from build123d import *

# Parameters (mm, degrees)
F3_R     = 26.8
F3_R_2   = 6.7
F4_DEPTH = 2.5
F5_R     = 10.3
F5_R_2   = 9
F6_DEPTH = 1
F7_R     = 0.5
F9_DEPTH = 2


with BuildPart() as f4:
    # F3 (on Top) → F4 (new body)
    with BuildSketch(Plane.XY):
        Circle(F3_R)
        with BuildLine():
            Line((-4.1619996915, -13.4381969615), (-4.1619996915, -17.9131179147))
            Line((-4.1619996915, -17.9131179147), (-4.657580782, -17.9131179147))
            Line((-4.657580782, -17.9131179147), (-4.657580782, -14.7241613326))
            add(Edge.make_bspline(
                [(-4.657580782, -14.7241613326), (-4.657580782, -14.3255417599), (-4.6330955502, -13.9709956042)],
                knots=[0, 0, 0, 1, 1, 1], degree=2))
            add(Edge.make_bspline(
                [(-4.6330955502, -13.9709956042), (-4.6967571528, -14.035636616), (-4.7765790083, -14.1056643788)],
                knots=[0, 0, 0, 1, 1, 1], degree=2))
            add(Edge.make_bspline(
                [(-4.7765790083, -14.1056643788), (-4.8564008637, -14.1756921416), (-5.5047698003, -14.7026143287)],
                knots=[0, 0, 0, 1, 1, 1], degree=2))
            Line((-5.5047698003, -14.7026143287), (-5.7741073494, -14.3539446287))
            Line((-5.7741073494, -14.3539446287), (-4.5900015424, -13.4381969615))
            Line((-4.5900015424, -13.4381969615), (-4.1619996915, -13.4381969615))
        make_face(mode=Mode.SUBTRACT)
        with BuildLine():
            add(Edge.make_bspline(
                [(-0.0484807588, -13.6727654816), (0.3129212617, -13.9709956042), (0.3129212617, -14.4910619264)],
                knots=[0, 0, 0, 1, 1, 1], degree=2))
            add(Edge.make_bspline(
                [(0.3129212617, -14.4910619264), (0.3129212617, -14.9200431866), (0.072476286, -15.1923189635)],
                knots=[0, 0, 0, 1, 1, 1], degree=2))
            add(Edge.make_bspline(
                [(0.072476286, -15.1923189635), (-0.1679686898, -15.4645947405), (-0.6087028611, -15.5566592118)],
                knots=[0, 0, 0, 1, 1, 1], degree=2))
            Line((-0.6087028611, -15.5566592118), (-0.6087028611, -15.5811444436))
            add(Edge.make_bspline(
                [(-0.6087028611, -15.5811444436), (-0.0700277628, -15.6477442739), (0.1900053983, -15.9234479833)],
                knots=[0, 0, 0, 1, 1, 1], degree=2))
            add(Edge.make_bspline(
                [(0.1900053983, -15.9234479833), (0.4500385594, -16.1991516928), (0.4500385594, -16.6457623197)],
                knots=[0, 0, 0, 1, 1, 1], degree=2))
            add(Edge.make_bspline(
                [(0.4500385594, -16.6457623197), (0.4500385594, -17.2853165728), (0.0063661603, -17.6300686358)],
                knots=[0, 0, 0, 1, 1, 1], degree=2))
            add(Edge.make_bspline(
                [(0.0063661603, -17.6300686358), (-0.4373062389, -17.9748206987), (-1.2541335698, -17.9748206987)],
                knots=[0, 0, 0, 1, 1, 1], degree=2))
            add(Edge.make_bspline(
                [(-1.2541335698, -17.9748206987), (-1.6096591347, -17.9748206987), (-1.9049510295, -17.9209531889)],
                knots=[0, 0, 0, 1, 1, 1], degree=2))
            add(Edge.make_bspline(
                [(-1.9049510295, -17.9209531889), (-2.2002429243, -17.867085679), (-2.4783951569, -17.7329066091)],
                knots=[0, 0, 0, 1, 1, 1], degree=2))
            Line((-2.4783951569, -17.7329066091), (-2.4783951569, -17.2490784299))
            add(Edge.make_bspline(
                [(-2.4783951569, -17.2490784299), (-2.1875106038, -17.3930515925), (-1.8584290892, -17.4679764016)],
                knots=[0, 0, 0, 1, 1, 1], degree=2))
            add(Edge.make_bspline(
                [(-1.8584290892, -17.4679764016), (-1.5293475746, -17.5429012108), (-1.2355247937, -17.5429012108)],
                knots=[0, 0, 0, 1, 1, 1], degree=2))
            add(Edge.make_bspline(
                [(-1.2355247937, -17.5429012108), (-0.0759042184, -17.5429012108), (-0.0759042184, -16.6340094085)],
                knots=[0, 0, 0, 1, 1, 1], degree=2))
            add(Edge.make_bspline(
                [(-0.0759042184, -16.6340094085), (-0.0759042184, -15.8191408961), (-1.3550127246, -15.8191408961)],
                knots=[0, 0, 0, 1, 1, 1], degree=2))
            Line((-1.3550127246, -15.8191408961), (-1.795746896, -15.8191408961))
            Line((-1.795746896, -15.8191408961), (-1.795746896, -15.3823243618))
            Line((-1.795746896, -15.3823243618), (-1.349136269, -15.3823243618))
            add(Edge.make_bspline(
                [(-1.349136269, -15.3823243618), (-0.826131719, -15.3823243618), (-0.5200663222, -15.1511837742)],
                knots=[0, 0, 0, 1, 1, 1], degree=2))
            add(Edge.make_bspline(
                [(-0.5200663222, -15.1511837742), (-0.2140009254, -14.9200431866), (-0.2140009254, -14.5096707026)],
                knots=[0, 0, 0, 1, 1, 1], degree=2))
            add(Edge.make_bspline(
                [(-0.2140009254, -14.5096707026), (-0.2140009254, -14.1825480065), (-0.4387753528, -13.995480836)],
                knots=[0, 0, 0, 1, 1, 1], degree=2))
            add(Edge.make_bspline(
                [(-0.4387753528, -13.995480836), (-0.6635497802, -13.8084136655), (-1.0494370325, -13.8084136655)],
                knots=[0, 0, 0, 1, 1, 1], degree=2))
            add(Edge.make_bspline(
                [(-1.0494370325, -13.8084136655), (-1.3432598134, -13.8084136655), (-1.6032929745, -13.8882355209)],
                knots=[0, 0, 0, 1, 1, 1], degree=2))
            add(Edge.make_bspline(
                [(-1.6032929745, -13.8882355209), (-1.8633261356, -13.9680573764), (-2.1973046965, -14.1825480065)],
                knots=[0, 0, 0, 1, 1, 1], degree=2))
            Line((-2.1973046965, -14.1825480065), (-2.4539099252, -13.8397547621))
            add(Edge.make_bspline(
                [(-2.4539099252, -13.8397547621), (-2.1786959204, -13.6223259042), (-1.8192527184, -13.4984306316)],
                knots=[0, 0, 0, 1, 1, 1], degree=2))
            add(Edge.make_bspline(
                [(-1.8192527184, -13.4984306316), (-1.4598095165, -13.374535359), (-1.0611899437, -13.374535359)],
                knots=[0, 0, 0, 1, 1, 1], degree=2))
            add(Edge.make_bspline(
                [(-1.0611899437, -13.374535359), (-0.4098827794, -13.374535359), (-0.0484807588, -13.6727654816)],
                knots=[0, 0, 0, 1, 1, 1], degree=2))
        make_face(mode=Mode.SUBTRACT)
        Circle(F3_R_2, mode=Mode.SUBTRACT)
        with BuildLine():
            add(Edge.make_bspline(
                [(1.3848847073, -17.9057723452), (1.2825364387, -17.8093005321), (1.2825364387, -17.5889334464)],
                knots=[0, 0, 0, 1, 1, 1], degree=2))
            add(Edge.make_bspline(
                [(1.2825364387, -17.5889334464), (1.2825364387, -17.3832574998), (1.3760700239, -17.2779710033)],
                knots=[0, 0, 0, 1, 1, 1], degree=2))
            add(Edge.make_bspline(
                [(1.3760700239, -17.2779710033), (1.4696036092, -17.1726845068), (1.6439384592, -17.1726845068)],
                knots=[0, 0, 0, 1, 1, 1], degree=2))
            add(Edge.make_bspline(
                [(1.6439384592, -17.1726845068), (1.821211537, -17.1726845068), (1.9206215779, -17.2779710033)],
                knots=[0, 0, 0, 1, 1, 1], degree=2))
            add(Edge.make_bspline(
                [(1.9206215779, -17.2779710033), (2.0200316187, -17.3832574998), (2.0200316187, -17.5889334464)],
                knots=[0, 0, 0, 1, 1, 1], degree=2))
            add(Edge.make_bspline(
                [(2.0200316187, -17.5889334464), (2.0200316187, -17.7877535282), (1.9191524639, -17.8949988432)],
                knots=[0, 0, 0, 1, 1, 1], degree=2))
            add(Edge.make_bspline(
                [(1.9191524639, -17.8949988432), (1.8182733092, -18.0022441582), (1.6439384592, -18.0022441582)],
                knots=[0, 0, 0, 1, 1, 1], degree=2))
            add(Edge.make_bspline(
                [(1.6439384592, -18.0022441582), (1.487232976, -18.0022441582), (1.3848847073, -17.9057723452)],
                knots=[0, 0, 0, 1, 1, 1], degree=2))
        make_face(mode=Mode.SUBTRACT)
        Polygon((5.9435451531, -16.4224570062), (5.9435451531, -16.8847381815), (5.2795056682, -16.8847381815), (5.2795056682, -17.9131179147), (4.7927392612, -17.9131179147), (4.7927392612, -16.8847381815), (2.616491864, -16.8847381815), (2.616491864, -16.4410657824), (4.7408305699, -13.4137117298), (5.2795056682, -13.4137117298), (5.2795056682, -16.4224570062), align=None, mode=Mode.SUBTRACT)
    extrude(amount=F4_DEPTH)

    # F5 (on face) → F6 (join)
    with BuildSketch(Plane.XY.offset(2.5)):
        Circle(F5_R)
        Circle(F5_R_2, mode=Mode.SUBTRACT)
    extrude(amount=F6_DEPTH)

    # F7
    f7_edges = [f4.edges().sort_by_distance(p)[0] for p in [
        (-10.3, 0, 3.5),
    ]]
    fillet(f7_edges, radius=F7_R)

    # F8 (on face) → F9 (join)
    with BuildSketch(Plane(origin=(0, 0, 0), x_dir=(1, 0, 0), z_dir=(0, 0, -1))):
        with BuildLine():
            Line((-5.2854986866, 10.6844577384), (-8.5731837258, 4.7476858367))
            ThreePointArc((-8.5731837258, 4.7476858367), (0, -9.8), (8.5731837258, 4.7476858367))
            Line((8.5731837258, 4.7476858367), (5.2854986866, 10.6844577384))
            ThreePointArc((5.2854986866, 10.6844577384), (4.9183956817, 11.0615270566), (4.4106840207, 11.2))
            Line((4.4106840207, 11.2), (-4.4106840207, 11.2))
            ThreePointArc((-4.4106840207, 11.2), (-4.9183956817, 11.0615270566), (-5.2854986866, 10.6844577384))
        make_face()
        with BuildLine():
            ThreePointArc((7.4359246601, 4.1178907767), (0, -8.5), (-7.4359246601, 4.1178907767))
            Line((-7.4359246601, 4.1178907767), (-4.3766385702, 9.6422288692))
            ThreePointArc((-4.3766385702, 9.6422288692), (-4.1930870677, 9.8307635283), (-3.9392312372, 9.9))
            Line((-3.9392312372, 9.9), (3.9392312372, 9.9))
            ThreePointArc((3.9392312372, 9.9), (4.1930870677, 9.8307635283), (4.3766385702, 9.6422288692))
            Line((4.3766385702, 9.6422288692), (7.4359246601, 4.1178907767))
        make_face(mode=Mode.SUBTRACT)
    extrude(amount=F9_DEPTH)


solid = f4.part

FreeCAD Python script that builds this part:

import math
import FreeCAD as App
import Part
import Sketcher

V = App.Vector


def edges_at(feature, points):
    """Names of the edges that pass closest to the given points."""
    edges = feature.Shape.Edges
    near = lambda p: min(range(len(edges)), key=lambda i: edges[i].distToShape(Part.Vertex(*p))[0])
    return sorted({f"Edge{near(p) + 1}" for p in points})


def add_polygon(sketch, points):
    """Adds a closed chain of lines whose ends are joined by coincident constraints."""
    first, n = sketch.GeometryCount, len(points)
    for a, b in zip(points, points[1:] + points[:1]):
        sketch.addGeometry(Part.LineSegment(App.Vector(*a, 0), App.Vector(*b, 0)), False)
    for i in range(n):
        sketch.addConstraint(Sketcher.Constraint("Coincident", first + i, 2, first + (i + 1) % n, 1))

doc = App.newDocument("Part")
params = doc.addObject("Spreadsheet::Sheet", "Params")
for row, (alias, value) in enumerate([
    ("sketch1_diameter", "53.6 mm"),
    ("sketch1_diameter2", "13.4 mm"),
    ("pad1_length", "2.5 mm"),
    ("sketch2_diameter", "18 mm"),
    ("sketch2_diameter2", "20.6 mm"),
    ("pad2_length", "1 mm"),
    ("fillet_radius", "0.5 mm"),
    ("sketch3_radius", "1 mm"),
    ("sketch3_radius2", "9.8 mm"),
    ("sketch3_radius3", "8.5 mm"),
    ("sketch3_radius4", "0.5 mm"),
    ("pad3_length", "2 mm"),
], start=1):
    params.set(f"A{row}", alias)
    params.set(f"B{row}", "=" + value)
    params.setAlias(f"B{row}", alias)

body = doc.addObject("PartDesign::Body", "Body")

# Sketch on XY plane
sketch1 = body.newObject("Sketcher::SketchObject", "Sketch")
sketch1.AttachmentSupport = (doc.getObject("XY_Plane"), [""])
sketch1.MapMode = "FlatFace"
sketch1.addGeometry(Part.Circle(V(0, 0, 0), V(0, 0, 1), 26.8), False)  # 0
sketch1.addGeometry(Part.LineSegment(V(-4.590002, -13.438197, 0), V(-4.162, -13.438197, 0)), False)  # 1
sketch1.addGeometry(Part.LineSegment(V(-4.162, -13.438197, 0), V(-4.162, -17.913118, 0)), False)  # 2
sketch1.addGeometry(Part.LineSegment(V(-4.162, -17.913118, 0), V(-4.657581, -17.913118, 0)), False)  # 3
sketch1.addGeometry(Part.LineSegment(V(-4.657581, -17.913118, 0), V(-4.657581, -14.724161, 0)), False)  # 4
sketch1.addGeometry(Part.BSplineCurve([V(-4.657581, -14.724161, 0), V(-4.657581, -14.325542, 0), V(-4.633096, -13.970996, 0)], [3, 3], [0, 1], False, 2, [1, 1, 1], False), False)  # 5
sketch1.addGeometry(Part.BSplineCurve([V(-4.633096, -13.970996, 0), V(-4.696757, -14.035637, 0), V(-4.776579, -14.105664, 0)], [3, 3], [0, 1], False, 2, [1, 1, 1], False), False)  # 6
sketch1.addGeometry(Part.BSplineCurve([V(-4.776579, -14.105664, 0), V(-4.856401, -14.175692, 0), V(-5.50477, -14.702614, 0)], [3, 3], [0, 1], False, 2, [1, 1, 1], False), False)  # 7
sketch1.addGeometry(Part.LineSegment(V(-5.50477, -14.702614, 0), V(-5.774107, -14.353945, 0)), False)  # 8
sketch1.addGeometry(Part.LineSegment(V(-5.774107, -14.353945, 0), V(-4.590002, -13.438197, 0)), False)  # 9
sketch1.addGeometry(Part.BSplineCurve([V(-1.819253, -13.498431, 0), V(-1.45981, -13.374535, 0), V(-0.409883, -13.374535, 0), V(-0.048481, -13.672765, 0)], [3, 1, 3], [0, 1, 2.633906634], False, 2, [1, 1, 1, 1], False), False)  # 10
sketch1.addGeometry(Part.BSplineCurve([V(-0.048481, -13.672765, 0), V(0.312921, -13.970996, 0), V(0.312921, -14.920043, 0), V(0.072476, -15.192319, 0)], [3, 1, 3], [0, 1, 1.824858757], False, 2, [1, 1, 1, 1], False), False)  # 11
sketch1.addGeometry(Part.BSplineCurve([V(0.072476, -15.192319, 0), V(-0.167969, -15.464595, 0), V(-0.608703, -15.556659, 0)], [3, 3], [0, 1], False, 2, [1, 1, 1], False), False)  # 12
sketch1.addGeometry(Part.LineSegment(V(-0.608703, -15.556659, 0), V(-0.608703, -15.581144, 0)), False)  # 13
sketch1.addGeometry(Part.BSplineCurve([V(-0.608703, -15.581144, 0), V(-0.070028, -15.647744, 0), V(0.190005, -15.923448, 0)], [3, 3], [0, 1], False, 2, [1, 1, 1], False), False)  # 14
sketch1.addGeometry(Part.BSplineCurve([V(0.190005, -15.923448, 0), V(0.450039, -16.199152, 0), V(0.450039, -17.285317, 0), V(0.006366, -17.630069, 0)], [3, 1, 3], [0, 1, 2.432017544], False, 2, [1, 1, 1, 1], False), False)  # 15
sketch1.addGeometry(Part.BSplineCurve([V(0.006366, -17.630069, 0), V(-0.437306, -17.974821, 0), V(-1.609659, -17.974821, 0), V(-1.904951, -17.920953, 0)], [3, 1, 3], [0, 1, 1.435251799], False, 2, [1, 1, 1, 1], False), False)  # 16
sketch1.addGeometry(Part.BSplineCurve([V(-1.904951, -17.920953, 0), V(-2.200243, -17.867086, 0), V(-2.478395, -17.732907, 0)], [3, 3], [0, 1], False, 2, [1, 1, 1], False), False)  # 17
sketch1.addGeometry(Part.LineSegment(V(-2.478395, -17.732907, 0), V(-2.478395, -17.249078, 0)), False)  # 18
sketch1.addGeometry(Part.BSplineCurve([V(-2.478395, -17.249078, 0), V(-2.187511, -17.393052, 0), V(-1.858429, -17.467976, 0)], [3, 3], [0, 1], False, 2, [1, 1, 1], False), False)  # 19
sketch1.addGeometry(Part.BSplineCurve([V(-1.858429, -17.467976, 0), V(-1.529348, -17.542901, 0), V(-0.075904, -17.542901, 0), V(-0.075904, -15.819141, 0), V(-1.355013, -15.819141, 0)], [3, 1, 1, 3], [0, 1, 4.946666667, 8.485057471], False, 2, [1, 1, 1, 1, 1], False), False)  # 20
sketch1.addGeometry(Part.LineSegment(V(-1.355013, -15.819141, 0), V(-1.795747, -15.819141, 0)), False)  # 21
sketch1.addGeometry(Part.LineSegment(V(-1.795747, -15.819141, 0), V(-1.795747, -15.382324, 0)), False)  # 22
sketch1.addGeometry(Part.LineSegment(V(-1.795747, -15.382324, 0), V(-1.349136, -15.382324, 0)), False)  # 23
sketch1.addGeometry(Part.BSplineCurve([V(-1.349136, -15.382324, 0), V(-0.826132, -15.382324, 0), V(-0.214001, -14.920043, 0), V(-0.214001, -14.182548, 0), V(-0.66355, -13.808414, 0), V(-1.34326, -13.808414, 0), V(-1.603293, -13.888236, 0)], [3, 1, 1, 1, 1, 3], [0, 1, 2, 2.797136038, 3.594272076, 4.201228451], False, 2, [1, 1, 1, 1, 1, 1, 1], False), False)  # 24
sketch1.addGeometry(Part.BSplineCurve([V(-1.603293, -13.888236, 0), V(-1.863326, -13.968057, 0), V(-2.197305, -14.182548, 0)], [3, 3], [0, 1], False, 2, [1, 1, 1], False), False)  # 25
sketch1.addGeometry(Part.LineSegment(V(-2.197305, -14.182548, 0), V(-2.45391, -13.839755, 0)), False)  # 26
sketch1.addGeometry(Part.BSplineCurve([V(-2.45391, -13.839755, 0), V(-2.178696, -13.622326, 0), V(-1.819253, -13.498431, 0)], [3, 3], [0, 1], False, 2, [1, 1, 1], False), False)  # 27
sketch1.addGeometry(Part.BSplineCurve([V(1.919152, -17.894999, 0), V(1.818273, -18.002244, 0), V(1.487233, -18.002244, 0), V(1.384885, -17.905772, 0)], [3, 1, 3], [0, 1, 1.898876405], False, 2, [1, 1, 1, 1], False), False)  # 28
sketch1.addGeometry(Part.BSplineCurve([V(1.384885, -17.905772, 0), V(1.282536, -17.809301, 0), V(1.282536, -17.383257, 0), V(1.37607, -17.277971, 0)], [3, 1, 3], [0, 1, 1.933333333], False, 2, [1, 1, 1, 1], False), False)  # 29
sketch1.addGeometry(Part.BSplineCurve([V(1.37607, -17.277971, 0), V(1.469604, -17.172685, 0), V(1.821212, -17.172685, 0), V(1.920622, -17.277971, 0)], [3, 1, 3], [0, 1, 2.016853933], False, 2, [1, 1, 1, 1], False), False)  # 30
sketch1.addGeometry(Part.BSplineCurve([V(1.920622, -17.277971, 0), V(2.020032, -17.383257, 0), V(2.020032, -17.787754, 0), V(1.919152, -17.894999, 0)], [3, 1, 3], [0, 1, 1.966666667], False, 2, [1, 1, 1, 1], False), False)  # 31
add_polygon(sketch1, [(5.279506, -16.422457), (5.943545, -16.422457), (5.943545, -16.884738), (5.279506, -16.884738), (5.279506, -17.913118), (4.792739, -17.913118), (4.792739, -16.884738), (2.616492, -16.884738), (2.616492, -16.441066), (4.740831, -13.413712), (5.279506, -13.413712)])  # lines 32-42
sketch1.addGeometry(Part.Circle(V(0, 0, 0), V(0, 0, 1), 6.7), False)  # 43
sketch1.addConstraint([
    Sketcher.Constraint("Block", 5),
    Sketcher.Constraint("Block", 6),
    Sketcher.Constraint("Block", 7),
    Sketcher.Constraint("Block", 10),
    Sketcher.Constraint("Block", 11),
    Sketcher.Constraint("Block", 12),
    Sketcher.Constraint("Block", 14),
    Sketcher.Constraint("Block", 15),
    Sketcher.Constraint("Block", 16),
    Sketcher.Constraint("Block", 17),
    Sketcher.Constraint("Block", 19),
    Sketcher.Constraint("Block", 20),
    Sketcher.Constraint("Block", 24),
    Sketcher.Constraint("Block", 25),
    Sketcher.Constraint("Block", 27),
    Sketcher.Constraint("Block", 28),
    Sketcher.Constraint("Block", 29),
    Sketcher.Constraint("Block", 30),
    Sketcher.Constraint("Block", 31),
    Sketcher.Constraint("Coincident", 1, 2, 2, 1),
    Sketcher.Constraint("Coincident", 2, 2, 3, 1),
    Sketcher.Constraint("Coincident", 3, 2, 4, 1),
    Sketcher.Constraint("Coincident", 4, 2, 5, 1),
    Sketcher.Constraint("Coincident", 7, 2, 8, 1),
    Sketcher.Constraint("Coincident", 8, 2, 9, 1),
    Sketcher.Constraint("Coincident", 9, 2, 1, 1),
    Sketcher.Constraint("Coincident", 12, 2, 13, 1),
    Sketcher.Constraint("Coincident", 13, 2, 14, 1),
    Sketcher.Constraint("Coincident", 17, 2, 18, 1),
    Sketcher.Constraint("Coincident", 18, 2, 19, 1),
    Sketcher.Constraint("Coincident", 20, 2, 21, 1),
    Sketcher.Constraint("Coincident", 21, 2, 22, 1),
    Sketcher.Constraint("Coincident", 22, 2, 23, 1),
    Sketcher.Constraint("Coincident", 23, 2, 24, 1),
    Sketcher.Constraint("Coincident", 25, 2, 26, 1),
    Sketcher.Constraint("Coincident", 26, 2, 27, 1),
    Sketcher.Constraint("Horizontal", 1),
    Sketcher.Constraint("Vertical", 2),
    Sketcher.Constraint("Horizontal", 3),
    Sketcher.Constraint("Vertical", 4),
    Sketcher.Constraint("Horizontal", 21),
    Sketcher.Constraint("Vertical", 22),
    Sketcher.Constraint("Horizontal", 23),
    Sketcher.Constraint("Horizontal", 32),
    Sketcher.Constraint("Vertical", 33),
    Sketcher.Constraint("Horizontal", 34),
    Sketcher.Constraint("Vertical", 35),
    Sketcher.Constraint("Horizontal", 36),
    Sketcher.Constraint("Vertical", 37),
    Sketcher.Constraint("Horizontal", 38),
    Sketcher.Constraint("Vertical", 39),
    Sketcher.Constraint("Horizontal", 41),
    Sketcher.Constraint("Vertical", 42),
    Sketcher.Constraint("Coincident", 0, 3, -1, 1),
    Sketcher.Constraint("Coincident", 43, 3, -1, 1),
    Sketcher.Constraint("Horizontal", 3, 2, 35, 2),
    Sketcher.Constraint("Horizontal", 34, 2, 37, 2),
    Sketcher.Constraint("Vertical", 35, 2, 41, 2),
    Sketcher.Constraint("Diameter", 0, 53.6),
    Sketcher.Constraint("Diameter", 43, 13.4),
    Sketcher.Constraint("DistanceX", 1, 1, 1, 2, 0.428002),
    Sketcher.Constraint("DistanceX", 9, 2, -1, 1, 4.590002),
    Sketcher.Constraint("DistanceX", 23, 1, 23, 2, 0.446611),
    Sketcher.Constraint("DistanceX", 32, 1, 32, 2, 0.664039),
    Sketcher.Constraint("DistanceY", 2, 2, 2, 1, 4.474921),
    Sketcher.Constraint("DistanceY", 33, 2, 33, 1, 0.462281),
    Sketcher.Constraint("DistanceY", 35, 2, 35, 1, 1.02838),
    Sketcher.Constraint("DistanceX", 36, 2, 36, 1, 0.486766),
    Sketcher.Constraint("DistanceX", 38, 2, 38, 1, 2.176247),
    Sketcher.Constraint("DistanceX", 41, 1, 41, 2, 0.538675),
    Sketcher.Constraint("DistanceY", 4, 1, 4, 2, 3.188957),
    Sketcher.Constraint("DistanceY", 39, 1, 39, 2, 0.443672),
    Sketcher.Constraint("DistanceY", 42, 2, 42, 1, 3.008745),
    Sketcher.Constraint("DistanceX", -1, 1, 36, 2, 4.792739),
    Sketcher.Constraint("Distance", 8, 0.440583),
    Sketcher.Constraint("Distance", 9, 1.496897),
])
sketch1.setExpression("Constraints[69]", "Params.sketch1_diameter")
sketch1.setExpression("Constraints[70]", "Params.sketch1_diameter2")
pad1 = body.newObject("PartDesign::Pad", "Pad")
pad1.Profile = sketch1
pad1.setExpression("Length", "Params.pad1_length")

# Sketch on XY plane
sketch2 = body.newObject("Sketcher::SketchObject", "Sketch001")
sketch2.AttachmentSupport = (doc.getObject("XY_Plane"), [""])
sketch2.MapMode = "FlatFace"
sketch2.AttachmentOffset = App.Placement(V(0, 0, 2.5), App.Rotation())
sketch2.addGeometry([
    Part.Circle(V(0, 0, 0), V(0, 0, 1), 10),
    Part.Circle(V(0, 0, 0), V(0, 0, 1), 9),
], False)
sketch2.addConstraint([
    Sketcher.Constraint("Coincident", 0, 3, -1, 1),
    Sketcher.Constraint("Coincident", 1, 3, -1, 1),
    Sketcher.Constraint("Diameter", 1, 18.0),
    Sketcher.Constraint("Diameter", 0, 20.6),
])
sketch2.setExpression("Constraints[2]", "Params.sketch2_diameter")
sketch2.setExpression("Constraints[3]", "Params.sketch2_diameter2")
pad2 = body.newObject("PartDesign::Pad", "Pad001")
pad2.Profile = sketch2
pad2.setExpression("Length", "Params.pad2_length")
doc.recompute()

fillet = body.newObject("PartDesign::Fillet", "Fillet")
fillet.Base = (pad2, edges_at(pad2, [(-10.3, 0, 3.5)]))
fillet.setExpression("Radius", "Params.fillet_radius")

# Sketch on XY plane
sketch3 = body.newObject("Sketcher::SketchObject", "Sketch002")
sketch3.AttachmentSupport = (doc.getObject("XY_Plane"), [""])
sketch3.MapMode = "FlatFace"
sketch3.addGeometry([
    Part.LineSegment(V(-5.3, -10.7, 0), V(-8.6, -4.7, 0)),  # 0
    Part.ArcOfCircle(Part.Circle(V(0, 0, 0), V(0, 0, 1), 9.8), math.radians(-29), math.radians(209)),  # 1
    Part.LineSegment(V(8.6, -4.7, 0), V(5.3, -10.7, 0)),  # 2
    Part.ArcOfCircle(Part.Circle(V(4.4, -10.2, 0), V(0, 0, 1), 1), math.radians(-90), math.radians(-29)),  # 3
    Part.LineSegment(V(4.4, -11.2, 0), V(-4.4, -11.2, 0)),  # 4
    Part.ArcOfCircle(Part.Circle(V(-4.4, -10.2, 0), V(0, 0, 1), 1), math.radians(-151), math.radians(-90)),  # 5
    Part.LineSegment(V(4.4, -9.6, 0), V(7.4, -4.1, 0)),  # 6
    Part.ArcOfCircle(Part.Circle(V(0, 0, 0), V(0, 0, 1), 8.5), math.radians(-29), math.radians(209)),  # 7
    Part.LineSegment(V(-7.4, -4.1, 0), V(-4.4, -9.6, 0)),  # 8
    Part.ArcOfCircle(Part.Circle(V(-3.9, -9.4, 0), V(0, 0, 1), 0.5), math.radians(-151), math.radians(-90)),  # 9
    Part.LineSegment(V(-3.9, -9.9, 0), V(3.9, -9.9, 0)),  # 10
    Part.ArcOfCircle(Part.Circle(V(3.9, -9.4, 0), V(0, 0, 1), 0.5), math.radians(-90), math.radians(-29)),  # 11
], False)
sketch3.addConstraint([
    Sketcher.Constraint("Tangent", 0, 2, 1, 2),
    Sketcher.Constraint("Tangent", 1, 1, 2, 1),
    Sketcher.Constraint("Tangent", 2, 2, 3, 2),
    Sketcher.Constraint("Tangent", 3, 1, 4, 1),
    Sketcher.Constraint("Tangent", 4, 2, 5, 2),
    Sketcher.Constraint("Tangent", 5, 1, 0, 1),
    Sketcher.Constraint("Tangent", 6, 2, 7, 1),
    Sketcher.Constraint("Tangent", 7, 2, 8, 1),
    Sketcher.Constraint("Tangent", 8, 2, 9, 1),
    Sketcher.Constraint("Tangent", 9, 2, 10, 1),
    Sketcher.Constraint("Tangent", 10, 2, 11, 1),
    Sketcher.Constraint("Tangent", 11, 2, 6, 1),
    Sketcher.Constraint("Horizontal", 4),
    Sketcher.Constraint("Horizontal", 10),
    Sketcher.Constraint("Coincident", 1, 3, -1, 1),
    Sketcher.Constraint("Coincident", 7, 3, -1, 1),
    Sketcher.Constraint("Equal", 3, 5),
    Sketcher.Constraint("Equal", 9, 11),
    Sketcher.Constraint("Parallel", 2, 6),
    Sketcher.Constraint("Parallel", 0, 8),
    Sketcher.Constraint("Horizontal", 0, 2, 1, 1),
    Sketcher.Constraint("Radius", 3, 1.0),
    Sketcher.Constraint("Radius", 1, 9.8),
    Sketcher.Constraint("Radius", 7, 8.5),
    Sketcher.Constraint("Radius", 9, 0.5),
    Sketcher.Constraint("DistanceY", 3, 3, -1, 1, 10.2),
    Sketcher.Constraint("DistanceY", 9, 3, -1, 1, 9.4),
    Sketcher.Constraint("DistanceX", 4, 2, 4, 1, 8.821368),
])
sketch3.setExpression("Constraints[21]", "Params.sketch3_radius")
sketch3.setExpression("Constraints[22]", "Params.sketch3_radius2")
sketch3.setExpression("Constraints[23]", "Params.sketch3_radius3")
sketch3.setExpression("Constraints[24]", "Params.sketch3_radius4")
pad3 = body.newObject("PartDesign::Pad", "Pad002")
pad3.Profile = sketch3
pad3.setExpression("Length", "Params.pad3_length")
pad3.Reversed = True

doc.recompute()
